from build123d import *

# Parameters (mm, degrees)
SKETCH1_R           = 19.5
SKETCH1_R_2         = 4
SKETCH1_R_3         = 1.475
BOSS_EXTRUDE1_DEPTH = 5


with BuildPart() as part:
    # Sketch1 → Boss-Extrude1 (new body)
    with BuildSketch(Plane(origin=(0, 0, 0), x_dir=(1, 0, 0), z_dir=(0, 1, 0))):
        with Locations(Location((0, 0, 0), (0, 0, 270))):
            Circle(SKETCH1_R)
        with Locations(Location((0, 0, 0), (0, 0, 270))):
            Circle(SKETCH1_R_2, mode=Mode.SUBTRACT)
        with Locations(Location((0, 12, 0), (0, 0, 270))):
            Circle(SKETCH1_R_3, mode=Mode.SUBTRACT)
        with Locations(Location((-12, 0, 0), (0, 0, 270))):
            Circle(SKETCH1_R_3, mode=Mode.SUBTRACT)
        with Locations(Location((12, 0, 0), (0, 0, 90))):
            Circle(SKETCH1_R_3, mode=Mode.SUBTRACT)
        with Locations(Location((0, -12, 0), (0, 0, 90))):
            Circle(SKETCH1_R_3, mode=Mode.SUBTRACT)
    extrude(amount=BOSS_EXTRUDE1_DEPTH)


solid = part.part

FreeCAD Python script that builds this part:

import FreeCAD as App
import Part
import Sketcher
from FreeCAD import Vector

doc = App.newDocument("Part")
body = doc.addObject("PartDesign::Body", "Body")

sketch1 = body.newObject("Sketcher::SketchObject", "Sketch")
sketch1.AttachmentSupport = (doc.getObject("XZ_Plane"), [""])
sketch1.MapMode = "FlatFace"
sketch1.addGeometry([
    Part.Circle(Vector(0, 0, 0), Vector(0, 0, 1), 19.5),
    Part.Circle(Vector(0, -12, 0), Vector(0, 0, 1), 1.5),
    Part.Circle(Vector(-12, 0, 0), Vector(0, 0, 1), 1.5),
    Part.Circle(Vector(12, 0, 0), Vector(0, 0, 1), 1.5),
    Part.Circle(Vector(0, 0, 0), Vector(0, 0, 1), 4),
    Part.Circle(Vector(0, 12, 0), Vector(0, 0, 1), 1.5),
], False)
sketch1.addConstraint([
    Sketcher.Constraint("Coincident", 0, 3, -1, 1),
    Sketcher.Constraint("Coincident", 4, 3, -1, 1),
    Sketcher.Constraint("Equal", 1, 2),
    Sketcher.Constraint("Equal", 2, 3),
    Sketcher.Constraint("Equal", 3, 5),
    Sketcher.Constraint("Symmetric", 2, 3, 3, 3, -1, 1),
    Sketcher.Constraint("Symmetric", 1, 3, 5, 3, -1, 1),
    Sketcher.Constraint("PointOnObject", 1, 3, -2),
    Sketcher.Constraint("PointOnObject", 2, 3, -1),
    Sketcher.Constraint("Diameter", 0, 39.0),
    Sketcher.Constraint("Diameter", 4, 8.0),
    Sketcher.Constraint("Diameter", 1, 2.95),
    Sketcher.Constraint("DistanceY", 1, 3, -1, 1, 12.0),
    Sketcher.Constraint("DistanceX", 2, 3, -1, 1, 12.0),
])
pad1 = body.newObject("PartDesign::Pad", "Pad")
pad1.Profile = sketch1
pad1.Length = 5
pad1.Reversed = True

doc.recompute()
